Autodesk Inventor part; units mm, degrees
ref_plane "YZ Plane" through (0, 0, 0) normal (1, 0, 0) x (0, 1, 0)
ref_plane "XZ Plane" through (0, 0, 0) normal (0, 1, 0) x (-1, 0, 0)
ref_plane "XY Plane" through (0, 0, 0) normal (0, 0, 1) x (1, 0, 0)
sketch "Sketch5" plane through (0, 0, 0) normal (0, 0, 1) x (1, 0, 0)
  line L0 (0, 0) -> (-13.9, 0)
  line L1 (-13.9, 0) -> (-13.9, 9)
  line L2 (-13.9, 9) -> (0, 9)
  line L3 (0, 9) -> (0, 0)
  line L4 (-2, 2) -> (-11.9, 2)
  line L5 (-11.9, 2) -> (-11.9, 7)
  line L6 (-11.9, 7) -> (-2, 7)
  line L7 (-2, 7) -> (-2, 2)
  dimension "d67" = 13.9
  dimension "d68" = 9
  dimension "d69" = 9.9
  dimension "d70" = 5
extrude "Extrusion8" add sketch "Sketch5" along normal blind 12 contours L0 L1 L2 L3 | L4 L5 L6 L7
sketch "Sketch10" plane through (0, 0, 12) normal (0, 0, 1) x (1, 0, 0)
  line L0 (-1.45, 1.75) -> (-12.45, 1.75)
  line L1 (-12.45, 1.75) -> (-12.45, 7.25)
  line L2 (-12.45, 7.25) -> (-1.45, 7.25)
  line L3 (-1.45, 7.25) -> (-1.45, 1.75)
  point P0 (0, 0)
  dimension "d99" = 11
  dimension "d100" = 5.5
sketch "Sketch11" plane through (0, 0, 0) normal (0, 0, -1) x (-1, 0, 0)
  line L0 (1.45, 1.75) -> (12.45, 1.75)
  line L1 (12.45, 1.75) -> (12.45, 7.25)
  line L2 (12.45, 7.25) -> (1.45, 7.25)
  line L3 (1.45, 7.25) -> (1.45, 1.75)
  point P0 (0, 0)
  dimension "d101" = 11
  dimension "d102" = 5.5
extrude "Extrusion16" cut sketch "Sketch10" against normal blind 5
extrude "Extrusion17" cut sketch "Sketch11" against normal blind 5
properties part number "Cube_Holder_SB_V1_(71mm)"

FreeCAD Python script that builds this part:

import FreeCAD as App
import Part
import Sketcher
Q = App.Units.Quantity


def add_polygon(sketch, points):
    """Adds a closed chain of lines whose ends are joined by coincident constraints."""
    first, n = sketch.GeometryCount, len(points)
    for a, b in zip(points, points[1:] + points[:1]):
        sketch.addGeometry(Part.LineSegment(App.Vector(*a, 0), App.Vector(*b, 0)), False)
    for i in range(n):
        sketch.addConstraint(Sketcher.Constraint("Coincident", first + i, 2, first + (i + 1) % n, 1))

doc = App.newDocument("Part")
body = doc.addObject("PartDesign::Body", "Body")

# Sketch on XY plane
sketch1 = body.newObject("Sketcher::SketchObject", "Sketch")
sketch1.AttachmentSupport = (doc.getObject("XY_Plane"), [""])
sketch1.MapMode = "FlatFace"
add_polygon(sketch1, [(-14, 0), (0, 0), (0, 9), (-14, 9)])  # lines 0-3
sketch1.addConstraint([
    Sketcher.Constraint("Horizontal", 0),
    Sketcher.Constraint("Vertical", 1),
    Sketcher.Constraint("Horizontal", 2),
    Sketcher.Constraint("Vertical", 3),
    Sketcher.Constraint("Coincident", 0, 2, -1, 1),
    Sketcher.Constraint("DistanceY", 1, 1, 1, 2, Q("9 mm")),
    Sketcher.Constraint("DistanceX", 0, 1, 0, 2, Q("13.9 mm")),
])
pad1 = body.newObject("PartDesign::Pad", "Pad")
pad1.Profile = sketch1
pad1.Length = 12

# Sketch on XY plane
sketch2 = body.newObject("Sketcher::SketchObject", "Sketch001")
sketch2.AttachmentSupport = (doc.getObject("XY_Plane"), [""])
sketch2.MapMode = "FlatFace"
sketch2.AttachmentOffset = App.Placement(App.Vector(0, 0, 12), App.Rotation())
add_polygon(sketch2, [(-12, 2), (-1, 2), (-1, 7), (-12, 7)])  # lines 0-3
sketch2.addConstraint([
    Sketcher.Constraint("Horizontal", 0),
    Sketcher.Constraint("Vertical", 1),
    Sketcher.Constraint("Horizontal", 2),
    Sketcher.Constraint("Vertical", 3),
    Sketcher.Constraint("DistanceX", 0, 1, 0, 2, Q("11 mm")),
    Sketcher.Constraint("DistanceY", 1, 1, 1, 2, Q("5.5 mm")),
    Sketcher.Constraint("DistanceX", 0, 2, -1, 1, Q("1.45 mm")),
    Sketcher.Constraint("DistanceY", -1, 1, 0, 2, Q("1.75 mm")),
])
pocket1 = body.newObject("PartDesign::Pocket", "Pocket")
pocket1.Profile = sketch2
pocket1.Length = 5

# Sketch on XY plane
sketch3 = body.newObject("Sketcher::SketchObject", "Sketch002")
sketch3.AttachmentSupport = (doc.getObject("XY_Plane"), [""])
sketch3.MapMode = "FlatFace"
add_polygon(sketch3, [(-1, 7), (-1, 2), (-12, 2), (-12, 7)])  # lines 0-3
sketch3.addConstraint([
    Sketcher.Constraint("Vertical", 0),
    Sketcher.Constraint("Horizontal", 1),
    Sketcher.Constraint("Vertical", 2),
    Sketcher.Constraint("Horizontal", 3),
    Sketcher.Constraint("DistanceX", 1, 2, 1, 1, Q("11 mm")),
    Sketcher.Constraint("DistanceY", 0, 2, 0, 1, Q("5.5 mm")),
    Sketcher.Constraint("DistanceX", 0, 2, -1, 1, Q("1.45 mm")),
    Sketcher.Constraint("DistanceY", -1, 1, 0, 2, Q("1.75 mm")),
])
pocket2 = body.newObject("PartDesign::Pocket", "Pocket001")
pocket2.Profile = sketch3
pocket2.Length = 5
pocket2.Reversed = True

doc.recompute()
